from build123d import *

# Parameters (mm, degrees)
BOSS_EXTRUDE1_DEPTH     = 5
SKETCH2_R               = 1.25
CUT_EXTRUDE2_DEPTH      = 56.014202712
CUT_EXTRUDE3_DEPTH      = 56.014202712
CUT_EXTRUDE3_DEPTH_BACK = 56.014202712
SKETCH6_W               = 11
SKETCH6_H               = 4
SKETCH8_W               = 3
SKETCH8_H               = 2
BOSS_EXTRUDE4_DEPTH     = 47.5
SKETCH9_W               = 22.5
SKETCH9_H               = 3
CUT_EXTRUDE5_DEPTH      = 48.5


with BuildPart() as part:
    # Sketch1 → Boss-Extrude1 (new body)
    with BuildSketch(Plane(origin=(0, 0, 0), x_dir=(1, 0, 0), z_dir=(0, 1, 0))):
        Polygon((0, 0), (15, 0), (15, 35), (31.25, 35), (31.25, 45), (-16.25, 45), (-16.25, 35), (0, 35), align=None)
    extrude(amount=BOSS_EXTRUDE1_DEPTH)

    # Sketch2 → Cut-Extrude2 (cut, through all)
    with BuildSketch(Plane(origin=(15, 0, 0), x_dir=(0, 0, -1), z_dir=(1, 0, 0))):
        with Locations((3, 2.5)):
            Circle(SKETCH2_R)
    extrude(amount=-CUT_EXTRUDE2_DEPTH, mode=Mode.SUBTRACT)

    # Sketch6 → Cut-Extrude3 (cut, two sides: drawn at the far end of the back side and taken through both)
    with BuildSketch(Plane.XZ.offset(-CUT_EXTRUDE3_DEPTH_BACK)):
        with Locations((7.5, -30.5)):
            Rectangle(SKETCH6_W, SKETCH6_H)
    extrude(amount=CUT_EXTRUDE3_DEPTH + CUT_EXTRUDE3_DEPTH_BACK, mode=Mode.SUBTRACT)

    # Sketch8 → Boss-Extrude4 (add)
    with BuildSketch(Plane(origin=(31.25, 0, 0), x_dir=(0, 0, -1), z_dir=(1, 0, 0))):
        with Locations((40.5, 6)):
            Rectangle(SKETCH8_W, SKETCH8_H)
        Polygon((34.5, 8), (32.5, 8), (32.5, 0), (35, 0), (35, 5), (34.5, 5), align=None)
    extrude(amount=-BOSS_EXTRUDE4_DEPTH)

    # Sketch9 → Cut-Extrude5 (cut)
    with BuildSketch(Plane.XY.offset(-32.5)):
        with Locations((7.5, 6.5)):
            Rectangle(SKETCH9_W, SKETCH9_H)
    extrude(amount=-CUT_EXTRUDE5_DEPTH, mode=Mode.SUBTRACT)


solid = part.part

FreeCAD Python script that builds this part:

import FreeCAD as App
import Part
import Sketcher

doc = App.newDocument("Part")
params = doc.addObject("Spreadsheet::Sheet", "Params")
for row, (alias, value) in enumerate([
    ("sketch1_width", "15 mm"),
    ("sketch1_height", "35 mm"),
    ("sketch1_height2", "10 mm"),
    ("sketch1_width2", "47.5 mm"),
    ("pad1_length", "5 mm"),
    ("sketch2_diameter", "2.5 mm"),
    ("sketch3_width", "11 mm"),
    ("sketch3_height", "4 mm"),
    ("sketch4_width", "2 mm"),
    ("sketch4_width2", "8 mm"),
    ("sketch4_width3", "5 mm"),
    ("sketch4_height", "2.5 mm"),
    ("pad2_length", "47.5 mm"),
    ("sketch5_height", "3 mm"),
    ("sketch5_width", "22.5 mm"),
    ("pocket3_length", "48.5 mm"),
], start=1):
    params.set(f"A{row}", alias)
    params.set(f"B{row}", "=" + value)
    params.setAlias(f"B{row}", alias)

body = doc.addObject("PartDesign::Body", "Body")

sketch1 = body.newObject("Sketcher::SketchObject", "Sketch")
sketch1.AttachmentSupport = (doc.getObject("XZ_Plane"), [""])
sketch1.MapMode = "FlatFace"
sketch1.addGeometry([
    Part.LineSegment(App.Vector(0, 0, 0), App.Vector(15, 0, 0)),
    Part.LineSegment(App.Vector(15, 0, 0), App.Vector(15, -35, 0)),
    Part.LineSegment(App.Vector(15, -35, 0), App.Vector(31, -35, 0)),
    Part.LineSegment(App.Vector(31, -35, 0), App.Vector(31, -45, 0)),
    Part.LineSegment(App.Vector(31, -45, 0), App.Vector(-16, -45, 0)),
    Part.LineSegment(App.Vector(-16, -45, 0), App.Vector(-16, -35, 0)),
    Part.LineSegment(App.Vector(-16, -35, 0), App.Vector(0, -35, 0)),
    Part.LineSegment(App.Vector(0, -35, 0), App.Vector(0, 0, 0)),
], False)
sketch1.addConstraint([
    Sketcher.Constraint("Coincident", 0, 2, 1, 1),
    Sketcher.Constraint("Coincident", 1, 2, 2, 1),
    Sketcher.Constraint("Coincident", 2, 2, 3, 1),
    Sketcher.Constraint("Coincident", 3, 2, 4, 1),
    Sketcher.Constraint("Coincident", 4, 2, 5, 1),
    Sketcher.Constraint("Coincident", 5, 2, 6, 1),
    Sketcher.Constraint("Coincident", 6, 2, 7, 1),
    Sketcher.Constraint("Coincident", 7, 2, 0, 1),
    Sketcher.Constraint("Horizontal", 0),
    Sketcher.Constraint("Vertical", 1),
    Sketcher.Constraint("Horizontal", 2),
    Sketcher.Constraint("Vertical", 3),
    Sketcher.Constraint("Horizontal", 4),
    Sketcher.Constraint("Vertical", 5),
    Sketcher.Constraint("Horizontal", 6),
    Sketcher.Constraint("Vertical", 7),
    Sketcher.Constraint("Coincident", 7, 2, -1, 1),
    Sketcher.Constraint("Horizontal", 2, 2, 5, 2),
    Sketcher.Constraint("Equal", 2, 6),
    Sketcher.Constraint("DistanceX", 0, 1, 0, 2, 15.0),
    Sketcher.Constraint("DistanceY", 1, 2, 1, 1, 35.0),
    Sketcher.Constraint("DistanceY", 3, 2, 3, 1, 10.0),
    Sketcher.Constraint("DistanceX", 4, 2, 4, 1, 47.5),
])
sketch1.setExpression("Constraints[19]", "Params.sketch1_width")
sketch1.setExpression("Constraints[20]", "Params.sketch1_height")
sketch1.setExpression("Constraints[21]", "Params.sketch1_height2")
sketch1.setExpression("Constraints[22]", "Params.sketch1_width2")
pad1 = body.newObject("PartDesign::Pad", "Pad")
pad1.Profile = sketch1
pad1.setExpression("Length", "Params.pad1_length")
pad1.Reversed = True

sketch2 = body.newObject("Sketcher::SketchObject", "Sketch001")
sketch2.AttachmentSupport = (doc.getObject("YZ_Plane"), [""])
sketch2.MapMode = "FlatFace"
sketch2.AttachmentOffset = App.Placement(App.Vector(0, 0, 15), App.Rotation())
sketch2.addGeometry(Part.Circle(App.Vector(2.5, -3, 0), App.Vector(0, 0, 1), 1.2), False)
sketch2.addConstraint([
    Sketcher.Constraint("Diameter", 0, 2.5),
    Sketcher.Constraint("DistanceY", 0, 3, -1, 1, 3.0),
    Sketcher.Constraint("DistanceX", -1, 1, 0, 3, 2.5),
])
sketch2.setExpression("Constraints[0]", "Params.sketch2_diameter")
pocket1 = body.newObject("PartDesign::Pocket", "Pocket")
pocket1.Profile = sketch2
pocket1.Type = "ThroughAll"

sketch3 = body.newObject("Sketcher::SketchObject", "Sketch002")
sketch3.AttachmentSupport = (doc.getObject("XZ_Plane"), [""])
sketch3.MapMode = "FlatFace"
sketch3.addGeometry([
    Part.LineSegment(App.Vector(2, -28.5, 0), App.Vector(2, -32.5, 0)),
    Part.LineSegment(App.Vector(2, -32.5, 0), App.Vector(13, -32.5, 0)),
    Part.LineSegment(App.Vector(13, -32.5, 0), App.Vector(13, -28.5, 0)),
    Part.LineSegment(App.Vector(13, -28.5, 0), App.Vector(2, -28.5, 0)),
], False)
sketch3.addConstraint([
    Sketcher.Constraint("Coincident", 0, 2, 1, 1),
    Sketcher.Constraint("Coincident", 1, 2, 2, 1),
    Sketcher.Constraint("Coincident", 2, 2, 3, 1),
    Sketcher.Constraint("Coincident", 3, 2, 0, 1),
    Sketcher.Constraint("Vertical", 0),
    Sketcher.Constraint("Horizontal", 1),
    Sketcher.Constraint("Vertical", 2),
    Sketcher.Constraint("Horizontal", 3),
    Sketcher.Constraint("DistanceX", 1, 1, 1, 2, 11.0),
    Sketcher.Constraint("DistanceY", 0, 2, 0, 1, 4.0),
    Sketcher.Constraint("DistanceX", -1, 1, 0, 2, 2.0),
    Sketcher.Constraint("DistanceY", 0, 2, -1, 1, 32.5),
])
sketch3.setExpression("Constraints[8]", "Params.sketch3_width")
sketch3.setExpression("Constraints[9]", "Params.sketch3_height")
pocket2 = body.newObject("PartDesign::Pocket", "Pocket001")
pocket2.Profile = sketch3
pocket2.Type = "ThroughAll"
pocket2.Midplane = True

sketch4 = body.newObject("Sketcher::SketchObject", "Sketch003")
sketch4.AttachmentSupport = (doc.getObject("YZ_Plane"), [""])
sketch4.MapMode = "FlatFace"
sketch4.AttachmentOffset = App.Placement(App.Vector(0, 0, 31.25), App.Rotation())
sketch4.addGeometry([
    Part.LineSegment(App.Vector(7, -39, 0), App.Vector(5, -39, 0)),
    Part.LineSegment(App.Vector(5, -39, 0), App.Vector(5, -42, 0)),
    Part.LineSegment(App.Vector(5, -42, 0), App.Vector(7, -42, 0)),
    Part.LineSegment(App.Vector(7, -42, 0), App.Vector(7, -39, 0)),
    Part.LineSegment(App.Vector(8, -34.5, 0), App.Vector(8, -32.5, 0)),
    Part.LineSegment(App.Vector(8, -32.5, 0), App.Vector(0, -32.5, 0)),
    Part.LineSegment(App.Vector(0, -32.5, 0), App.Vector(0, -35, 0)),
    Part.LineSegment(App.Vector(0, -35, 0), App.Vector(5, -35, 0)),
    Part.LineSegment(App.Vector(5, -35, 0), App.Vector(5, -34.5, 0)),
    Part.LineSegment(App.Vector(5, -34.5, 0), App.Vector(8, -34.5, 0)),
], False)
sketch4.addConstraint([
    Sketcher.Constraint("Coincident", 0, 2, 1, 1),
    Sketcher.Constraint("Coincident", 1, 2, 2, 1),
    Sketcher.Constraint("Coincident", 2, 2, 3, 1),
    Sketcher.Constraint("Coincident", 3, 2, 0, 1),
    Sketcher.Constraint("Coincident", 4, 2, 5, 1),
    Sketcher.Constraint("Coincident", 5, 2, 6, 1),
    Sketcher.Constraint("Coincident", 6, 2, 7, 1),
    Sketcher.Constraint("Coincident", 7, 2, 8, 1),
    Sketcher.Constraint("Coincident", 8, 2, 9, 1),
    Sketcher.Constraint("Coincident", 9, 2, 4, 1),
    Sketcher.Constraint("Horizontal", 0),
    Sketcher.Constraint("Vertical", 1),
    Sketcher.Constraint("Horizontal", 2),
    Sketcher.Constraint("Vertical", 3),
    Sketcher.Constraint("Vertical", 4),
    Sketcher.Constraint("Horizontal", 5),
    Sketcher.Constraint("Vertical", 6),
    Sketcher.Constraint("Horizontal", 7),
    Sketcher.Constraint("Vertical", 8),
    Sketcher.Constraint("Horizontal", 9),
    Sketcher.Constraint("PointOnObject", 5, 2, -2),
    Sketcher.Constraint("Vertical", 1, 2, 7, 2),
    Sketcher.Constraint("Equal", 9, 1),
    Sketcher.Constraint("Equal", 2, 4),
    Sketcher.Constraint("DistanceX", 0, 2, 0, 1, 2.0),
    Sketcher.Constraint("DistanceX", 5, 2, 5, 1, 8.0),
    Sketcher.Constraint("DistanceX", 7, 1, 7, 2, 5.0),
    Sketcher.Constraint("DistanceY", 6, 2, 6, 1, 2.5),
    Sketcher.Constraint("DistanceY", 0, 2, -1, 1, 39.0),
    Sketcher.Constraint("DistanceY", 6, 2, -1, 1, 35.0),
])
sketch4.setExpression("Constraints[24]", "Params.sketch4_width")
sketch4.setExpression("Constraints[25]", "Params.sketch4_width2")
sketch4.setExpression("Constraints[26]", "Params.sketch4_width3")
sketch4.setExpression("Constraints[27]", "Params.sketch4_height")
pad2 = body.newObject("PartDesign::Pad", "Pad001")
pad2.Profile = sketch4
pad2.setExpression("Length", "Params.pad2_length")
pad2.Reversed = True

sketch5 = body.newObject("Sketcher::SketchObject", "Sketch004")
sketch5.AttachmentSupport = (doc.getObject("XY_Plane"), [""])
sketch5.MapMode = "FlatFace"
sketch5.AttachmentOffset = App.Placement(App.Vector(0, 0, -32.5), App.Rotation())
sketch5.addGeometry([
    Part.LineSegment(App.Vector(-3.8, 8, 0), App.Vector(-3.8, 5, 0)),
    Part.LineSegment(App.Vector(-3.8, 5, 0), App.Vector(18.8, 5, 0)),
    Part.LineSegment(App.Vector(18.8, 5, 0), App.Vector(18.8, 8, 0)),
    Part.LineSegment(App.Vector(18.8, 8, 0), App.Vector(-3.8, 8, 0)),
], False)
sketch5.addConstraint([
    Sketcher.Constraint("Coincident", 0, 2, 1, 1),
    Sketcher.Constraint("Coincident", 1, 2, 2, 1),
    Sketcher.Constraint("Coincident", 2, 2, 3, 1),
    Sketcher.Constraint("Coincident", 3, 2, 0, 1),
    Sketcher.Constraint("Vertical", 0),
    Sketcher.Constraint("Horizontal", 1),
    Sketcher.Constraint("Vertical", 2),
    Sketcher.Constraint("Horizontal", 3),
    Sketcher.Constraint("DistanceY", 0, 2, 0, 1, 3.0),
    Sketcher.Constraint("DistanceX", 1, 1, 1, 2, 22.5),
    Sketcher.Constraint("DistanceY", -1, 1, 0, 2, 5.0),
    Sketcher.Constraint("DistanceX", 0, 2, -1, 1, 3.75),
])
sketch5.setExpression("Constraints[8]", "Params.sketch5_height")
sketch5.setExpression("Constraints[9]", "Params.sketch5_width")
pocket3 = body.newObject("PartDesign::Pocket", "Pocket002")
pocket3.Profile = sketch5
pocket3.setExpression("Length", "Params.pocket3_length")

doc.recompute()
